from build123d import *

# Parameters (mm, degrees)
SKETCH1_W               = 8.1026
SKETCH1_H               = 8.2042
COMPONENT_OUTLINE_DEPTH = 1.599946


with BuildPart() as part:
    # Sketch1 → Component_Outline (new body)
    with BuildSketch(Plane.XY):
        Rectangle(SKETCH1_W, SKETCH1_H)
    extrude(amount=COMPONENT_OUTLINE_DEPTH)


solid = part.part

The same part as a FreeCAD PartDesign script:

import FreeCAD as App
import Part
import Sketcher

V = App.Vector
Q = App.Units.Quantity


def add_polygon(sketch, points):
    """Adds a closed chain of lines whose ends are joined by coincident constraints."""
    first, n = sketch.GeometryCount, len(points)
    for a, b in zip(points, points[1:] + points[:1]):
        sketch.addGeometry(Part.LineSegment(App.Vector(*a, 0), App.Vector(*b, 0)), False)
    for i in range(n):
        sketch.addConstraint(Sketcher.Constraint("Coincident", first + i, 2, first + (i + 1) % n, 1))

doc = App.newDocument("Part")
body = doc.addObject("PartDesign::Body", "Body")

sketch1 = doc.addObject("Sketcher::SketchObject", "Sketch")
body.addObject(sketch1)
sketch1.AttachmentSupport = (doc.XY_Plane, [""])
sketch1.MapMode = "FlatFace"
add_polygon(sketch1, [(-4.0513, 4.1021), (-4.0513, -4.1021), (4.0513, -4.1021), (4.0513, 4.1021)])
sketch1.addConstraint([
    Sketcher.Constraint("Vertical", 0),
    Sketcher.Constraint("Horizontal", 1),
    Sketcher.Constraint("Vertical", 2),
    Sketcher.Constraint("Horizontal", 3),
    Sketcher.Constraint("Symmetric", 0, 2, 2, 2, -1, 1),
    Sketcher.Constraint("DistanceX", 1, 1, 1, 2, Q("0.319 in")),
    Sketcher.Constraint("DistanceY", 0, 2, 0, 1, Q("0.323 in")),
])
pad1 = doc.addObject("PartDesign::Pad", "Pad")
body.addObject(pad1)
pad1.Profile = sketch1
pad1.Length = 1.599946

doc.recompute()
